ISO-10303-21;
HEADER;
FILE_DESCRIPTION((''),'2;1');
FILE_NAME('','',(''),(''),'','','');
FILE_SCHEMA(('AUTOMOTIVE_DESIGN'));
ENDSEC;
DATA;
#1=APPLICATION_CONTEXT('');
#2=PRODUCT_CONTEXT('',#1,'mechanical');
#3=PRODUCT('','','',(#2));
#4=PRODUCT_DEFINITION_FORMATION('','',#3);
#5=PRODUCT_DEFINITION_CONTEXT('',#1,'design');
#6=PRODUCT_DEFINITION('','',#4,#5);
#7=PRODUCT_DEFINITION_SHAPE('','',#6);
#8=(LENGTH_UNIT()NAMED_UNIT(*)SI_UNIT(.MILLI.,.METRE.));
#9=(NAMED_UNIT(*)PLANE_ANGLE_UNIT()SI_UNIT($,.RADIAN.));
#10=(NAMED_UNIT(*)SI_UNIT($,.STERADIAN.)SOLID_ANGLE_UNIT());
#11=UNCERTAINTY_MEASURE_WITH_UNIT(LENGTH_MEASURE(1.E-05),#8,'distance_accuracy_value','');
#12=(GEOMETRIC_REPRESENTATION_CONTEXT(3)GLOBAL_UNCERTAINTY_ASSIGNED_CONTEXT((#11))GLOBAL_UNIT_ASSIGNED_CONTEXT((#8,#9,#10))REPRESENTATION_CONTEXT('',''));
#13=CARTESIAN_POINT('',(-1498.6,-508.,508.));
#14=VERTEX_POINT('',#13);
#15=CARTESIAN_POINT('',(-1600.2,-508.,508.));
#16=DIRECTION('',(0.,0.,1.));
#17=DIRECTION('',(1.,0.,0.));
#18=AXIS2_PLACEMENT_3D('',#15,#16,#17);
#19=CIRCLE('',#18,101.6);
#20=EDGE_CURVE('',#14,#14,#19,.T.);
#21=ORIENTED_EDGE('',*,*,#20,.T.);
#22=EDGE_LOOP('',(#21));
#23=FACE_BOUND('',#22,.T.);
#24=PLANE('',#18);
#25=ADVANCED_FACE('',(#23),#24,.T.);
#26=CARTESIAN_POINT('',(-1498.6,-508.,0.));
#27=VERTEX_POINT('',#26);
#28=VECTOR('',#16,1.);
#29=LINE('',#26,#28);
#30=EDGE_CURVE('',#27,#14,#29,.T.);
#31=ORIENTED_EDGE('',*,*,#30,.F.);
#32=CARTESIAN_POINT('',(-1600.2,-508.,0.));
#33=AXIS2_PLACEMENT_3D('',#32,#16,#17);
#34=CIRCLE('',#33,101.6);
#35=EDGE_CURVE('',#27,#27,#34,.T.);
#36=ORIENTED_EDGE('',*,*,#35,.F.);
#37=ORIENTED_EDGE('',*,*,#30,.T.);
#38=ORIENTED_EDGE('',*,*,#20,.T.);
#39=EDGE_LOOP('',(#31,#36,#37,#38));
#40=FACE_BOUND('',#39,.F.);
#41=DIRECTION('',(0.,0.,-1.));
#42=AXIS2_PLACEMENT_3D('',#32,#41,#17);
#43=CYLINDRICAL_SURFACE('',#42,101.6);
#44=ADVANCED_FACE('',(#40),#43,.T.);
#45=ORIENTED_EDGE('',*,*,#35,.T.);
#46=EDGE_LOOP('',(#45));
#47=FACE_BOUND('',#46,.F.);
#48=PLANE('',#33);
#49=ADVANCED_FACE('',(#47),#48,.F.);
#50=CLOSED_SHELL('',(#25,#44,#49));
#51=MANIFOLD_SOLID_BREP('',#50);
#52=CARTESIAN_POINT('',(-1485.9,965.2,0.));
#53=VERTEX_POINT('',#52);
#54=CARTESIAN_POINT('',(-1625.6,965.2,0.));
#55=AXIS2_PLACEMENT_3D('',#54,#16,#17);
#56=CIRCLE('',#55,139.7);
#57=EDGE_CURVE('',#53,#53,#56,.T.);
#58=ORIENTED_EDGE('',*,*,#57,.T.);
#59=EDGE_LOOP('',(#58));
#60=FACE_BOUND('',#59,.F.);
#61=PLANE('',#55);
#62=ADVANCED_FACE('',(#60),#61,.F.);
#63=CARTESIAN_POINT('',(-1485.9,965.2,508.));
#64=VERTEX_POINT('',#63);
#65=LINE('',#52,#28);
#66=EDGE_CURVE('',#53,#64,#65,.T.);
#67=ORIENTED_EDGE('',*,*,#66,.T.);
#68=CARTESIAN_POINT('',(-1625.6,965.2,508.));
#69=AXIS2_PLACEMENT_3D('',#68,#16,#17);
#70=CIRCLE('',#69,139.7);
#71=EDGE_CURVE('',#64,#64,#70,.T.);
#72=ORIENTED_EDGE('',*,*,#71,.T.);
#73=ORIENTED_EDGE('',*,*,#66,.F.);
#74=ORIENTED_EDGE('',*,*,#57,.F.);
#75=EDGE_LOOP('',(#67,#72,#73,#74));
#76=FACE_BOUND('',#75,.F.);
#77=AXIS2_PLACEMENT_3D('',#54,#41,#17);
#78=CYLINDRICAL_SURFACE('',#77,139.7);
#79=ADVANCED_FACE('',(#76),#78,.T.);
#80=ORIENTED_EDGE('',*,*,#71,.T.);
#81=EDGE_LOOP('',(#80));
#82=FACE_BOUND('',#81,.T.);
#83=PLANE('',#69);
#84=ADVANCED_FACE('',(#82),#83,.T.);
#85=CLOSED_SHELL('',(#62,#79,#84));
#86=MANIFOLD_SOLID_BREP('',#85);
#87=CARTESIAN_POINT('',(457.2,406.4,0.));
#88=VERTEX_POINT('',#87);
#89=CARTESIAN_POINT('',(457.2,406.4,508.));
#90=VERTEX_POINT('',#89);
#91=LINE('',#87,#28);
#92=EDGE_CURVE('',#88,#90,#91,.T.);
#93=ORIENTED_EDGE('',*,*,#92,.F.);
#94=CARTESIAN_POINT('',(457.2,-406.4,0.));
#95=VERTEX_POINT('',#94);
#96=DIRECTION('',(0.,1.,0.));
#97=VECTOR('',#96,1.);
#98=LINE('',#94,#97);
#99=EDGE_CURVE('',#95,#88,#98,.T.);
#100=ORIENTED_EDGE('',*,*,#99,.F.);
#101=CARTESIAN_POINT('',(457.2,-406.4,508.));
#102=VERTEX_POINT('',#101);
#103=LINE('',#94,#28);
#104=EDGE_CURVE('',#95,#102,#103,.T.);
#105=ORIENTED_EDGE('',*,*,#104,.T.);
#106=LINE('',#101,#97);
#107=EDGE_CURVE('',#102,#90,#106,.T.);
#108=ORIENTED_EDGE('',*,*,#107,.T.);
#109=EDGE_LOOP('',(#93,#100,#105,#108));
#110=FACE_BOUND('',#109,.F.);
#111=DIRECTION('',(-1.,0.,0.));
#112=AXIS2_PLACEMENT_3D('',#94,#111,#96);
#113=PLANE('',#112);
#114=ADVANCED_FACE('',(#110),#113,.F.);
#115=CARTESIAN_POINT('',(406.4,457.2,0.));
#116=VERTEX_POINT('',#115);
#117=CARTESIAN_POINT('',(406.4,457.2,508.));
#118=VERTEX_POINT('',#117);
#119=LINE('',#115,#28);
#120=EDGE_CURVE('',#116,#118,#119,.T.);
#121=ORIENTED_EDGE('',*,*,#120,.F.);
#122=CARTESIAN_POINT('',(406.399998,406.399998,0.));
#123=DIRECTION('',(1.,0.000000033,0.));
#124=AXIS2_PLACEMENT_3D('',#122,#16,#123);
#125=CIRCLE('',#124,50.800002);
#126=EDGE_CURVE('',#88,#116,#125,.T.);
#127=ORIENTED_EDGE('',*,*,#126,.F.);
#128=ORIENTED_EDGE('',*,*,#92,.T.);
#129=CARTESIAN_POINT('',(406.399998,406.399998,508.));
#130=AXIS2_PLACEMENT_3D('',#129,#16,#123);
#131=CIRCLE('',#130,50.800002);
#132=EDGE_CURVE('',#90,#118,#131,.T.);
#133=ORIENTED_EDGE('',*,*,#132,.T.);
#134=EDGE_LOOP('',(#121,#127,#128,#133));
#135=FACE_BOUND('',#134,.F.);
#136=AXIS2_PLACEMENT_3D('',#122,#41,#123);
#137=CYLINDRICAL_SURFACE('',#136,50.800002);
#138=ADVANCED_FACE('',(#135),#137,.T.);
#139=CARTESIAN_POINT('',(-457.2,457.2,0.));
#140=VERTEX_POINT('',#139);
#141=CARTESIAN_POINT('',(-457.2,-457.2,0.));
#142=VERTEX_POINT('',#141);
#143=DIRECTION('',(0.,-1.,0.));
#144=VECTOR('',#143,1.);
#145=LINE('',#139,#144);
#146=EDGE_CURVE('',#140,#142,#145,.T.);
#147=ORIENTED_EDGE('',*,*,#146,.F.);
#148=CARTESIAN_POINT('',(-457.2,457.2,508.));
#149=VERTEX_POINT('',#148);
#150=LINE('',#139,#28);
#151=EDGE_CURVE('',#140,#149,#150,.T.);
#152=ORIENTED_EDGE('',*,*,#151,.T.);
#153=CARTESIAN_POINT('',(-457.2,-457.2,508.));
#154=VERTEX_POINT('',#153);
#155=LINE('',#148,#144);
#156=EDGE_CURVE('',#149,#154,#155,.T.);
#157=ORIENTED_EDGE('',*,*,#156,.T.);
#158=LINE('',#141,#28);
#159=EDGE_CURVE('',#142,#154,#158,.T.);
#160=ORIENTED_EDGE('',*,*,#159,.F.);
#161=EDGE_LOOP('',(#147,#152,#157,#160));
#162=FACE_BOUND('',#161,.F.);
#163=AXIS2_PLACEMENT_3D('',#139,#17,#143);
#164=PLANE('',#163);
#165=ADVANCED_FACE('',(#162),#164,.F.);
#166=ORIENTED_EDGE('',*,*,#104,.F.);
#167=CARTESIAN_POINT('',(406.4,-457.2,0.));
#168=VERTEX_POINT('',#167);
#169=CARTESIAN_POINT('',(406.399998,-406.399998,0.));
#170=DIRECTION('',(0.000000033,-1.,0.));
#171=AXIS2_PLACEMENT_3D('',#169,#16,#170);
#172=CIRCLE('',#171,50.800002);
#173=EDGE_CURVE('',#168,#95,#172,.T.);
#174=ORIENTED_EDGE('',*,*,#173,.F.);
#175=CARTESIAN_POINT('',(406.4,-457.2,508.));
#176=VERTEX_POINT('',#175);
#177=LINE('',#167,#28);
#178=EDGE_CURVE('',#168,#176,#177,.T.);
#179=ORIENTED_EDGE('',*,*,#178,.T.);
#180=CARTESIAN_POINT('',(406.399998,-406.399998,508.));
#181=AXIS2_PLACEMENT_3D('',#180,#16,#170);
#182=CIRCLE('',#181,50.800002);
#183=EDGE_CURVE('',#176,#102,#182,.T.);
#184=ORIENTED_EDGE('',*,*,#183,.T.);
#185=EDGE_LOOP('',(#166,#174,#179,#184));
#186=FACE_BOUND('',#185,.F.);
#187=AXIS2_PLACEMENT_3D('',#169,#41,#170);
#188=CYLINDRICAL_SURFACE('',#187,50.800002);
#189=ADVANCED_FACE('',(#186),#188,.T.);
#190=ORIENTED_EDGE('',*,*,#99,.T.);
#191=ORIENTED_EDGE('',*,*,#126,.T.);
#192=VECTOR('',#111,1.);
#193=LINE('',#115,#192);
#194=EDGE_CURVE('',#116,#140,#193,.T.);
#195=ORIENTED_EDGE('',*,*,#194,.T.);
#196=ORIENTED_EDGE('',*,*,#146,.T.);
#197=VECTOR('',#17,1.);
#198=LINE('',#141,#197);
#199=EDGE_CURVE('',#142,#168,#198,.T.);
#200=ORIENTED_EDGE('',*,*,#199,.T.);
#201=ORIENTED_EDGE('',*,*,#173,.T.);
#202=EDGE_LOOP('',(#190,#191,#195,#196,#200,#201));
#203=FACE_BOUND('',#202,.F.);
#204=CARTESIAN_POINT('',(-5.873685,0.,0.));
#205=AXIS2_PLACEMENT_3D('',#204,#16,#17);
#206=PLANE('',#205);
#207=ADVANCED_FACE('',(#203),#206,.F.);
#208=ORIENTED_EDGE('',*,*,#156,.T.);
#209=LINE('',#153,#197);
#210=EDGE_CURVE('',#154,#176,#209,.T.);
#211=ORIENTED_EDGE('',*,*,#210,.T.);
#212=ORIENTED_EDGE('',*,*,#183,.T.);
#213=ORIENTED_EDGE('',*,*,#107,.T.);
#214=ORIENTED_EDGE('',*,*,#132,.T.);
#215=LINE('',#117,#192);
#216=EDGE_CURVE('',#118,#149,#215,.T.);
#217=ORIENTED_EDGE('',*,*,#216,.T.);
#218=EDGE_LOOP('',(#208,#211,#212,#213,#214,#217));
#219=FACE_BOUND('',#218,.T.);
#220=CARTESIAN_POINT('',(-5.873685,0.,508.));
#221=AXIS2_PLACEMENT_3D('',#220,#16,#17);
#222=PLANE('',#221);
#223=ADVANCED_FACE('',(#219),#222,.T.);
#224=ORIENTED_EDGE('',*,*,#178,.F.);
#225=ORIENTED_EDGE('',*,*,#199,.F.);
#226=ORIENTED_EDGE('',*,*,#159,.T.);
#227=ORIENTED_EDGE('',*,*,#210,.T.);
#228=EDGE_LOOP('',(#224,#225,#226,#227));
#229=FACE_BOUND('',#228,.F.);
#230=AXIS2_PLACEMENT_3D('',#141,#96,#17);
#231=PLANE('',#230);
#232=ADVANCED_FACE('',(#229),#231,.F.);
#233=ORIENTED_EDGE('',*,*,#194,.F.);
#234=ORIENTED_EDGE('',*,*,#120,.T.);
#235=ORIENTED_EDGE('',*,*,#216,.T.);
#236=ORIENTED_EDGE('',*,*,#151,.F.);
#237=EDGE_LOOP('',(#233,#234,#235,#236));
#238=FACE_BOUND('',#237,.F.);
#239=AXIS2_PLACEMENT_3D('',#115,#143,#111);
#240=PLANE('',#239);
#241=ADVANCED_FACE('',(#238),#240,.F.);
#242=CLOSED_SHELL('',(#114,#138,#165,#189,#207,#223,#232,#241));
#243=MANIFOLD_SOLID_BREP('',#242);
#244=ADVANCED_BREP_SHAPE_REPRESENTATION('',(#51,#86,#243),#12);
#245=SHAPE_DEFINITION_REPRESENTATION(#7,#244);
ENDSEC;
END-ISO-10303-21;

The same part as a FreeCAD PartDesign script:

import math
import FreeCAD as App
import Part
import Sketcher
from FreeCAD import Vector
Q = App.Units.Quantity

doc = App.newDocument("Part")
body = doc.addObject("PartDesign::Body", "Body")

# Sketch on XY plane
sketch1 = body.newObject("Sketcher::SketchObject", "Sketch")
sketch1.AttachmentSupport = (doc.getObject("XY_Plane"), [""])
sketch1.MapMode = "FlatFace"
sketch1.addGeometry([
    Part.ArcOfCircle(Part.Circle(Vector(406, 406, 0), Vector(0, 0, 1), 51), math.radians(0), math.radians(90)),  # 0
    Part.LineSegment(Vector(406, 457, 0), Vector(-457, 457, 0)),  # 1
    Part.LineSegment(Vector(-457, 457, 0), Vector(-457, -457, 0)),  # 2
    Part.LineSegment(Vector(-457, -457, 0), Vector(406, -457, 0)),  # 3
    Part.ArcOfCircle(Part.Circle(Vector(406, -406, 0), Vector(0, 0, 1), 51), math.radians(-90), math.radians(0)),  # 4
    Part.LineSegment(Vector(457, -406, 0), Vector(457, 406, 0)),  # 5
], False)
sketch1.addConstraint([
    Sketcher.Constraint("Tangent", 0, 2, 1, 1),
    Sketcher.Constraint("Coincident", 1, 2, 2, 1),
    Sketcher.Constraint("Coincident", 2, 2, 3, 1),
    Sketcher.Constraint("Tangent", 3, 2, 4, 1),
    Sketcher.Constraint("Tangent", 4, 2, 5, 1),
    Sketcher.Constraint("Tangent", 5, 2, 0, 1),
    Sketcher.Constraint("Horizontal", 1),
    Sketcher.Constraint("Vertical", 2),
    Sketcher.Constraint("Horizontal", 3),
    Sketcher.Constraint("Vertical", 5),
    Sketcher.Constraint("Equal", 0, 4),
    Sketcher.Constraint("Radius", 0, Q("2.0000001 in")),
    Sketcher.Constraint("DistanceX", 1, 2, 1, 1, Q("34 in")),
    Sketcher.Constraint("DistanceY", 2, 2, 2, 1, Q("36 in")),
    Sketcher.Constraint("DistanceX", -1, 1, 0, 3, Q("15.9999999 in")),
    Sketcher.Constraint("DistanceY", -1, 1, 0, 3, Q("15.9999999 in")),
])
pad1 = body.newObject("PartDesign::Pad", "Pad")
pad1.Profile = sketch1
pad1.Length = Q("20 in")
body2 = doc.addObject("PartDesign::Body", "Body001")

# Sketch on XY plane
sketch2 = body2.newObject("Sketcher::SketchObject", "Sketch001")
sketch2.AttachmentSupport = (doc.getObject("XY_Plane001"), [""])
sketch2.MapMode = "FlatFace"
sketch2.addGeometry(Part.Circle(Vector(-1600, -508, 0), Vector(0, 0, 1), 102), False)
sketch2.addConstraint([
    Sketcher.Constraint("Diameter", 0, Q("8 in")),
    Sketcher.Constraint("DistanceX", 0, 3, -1, 1, Q("63 in")),
    Sketcher.Constraint("DistanceY", 0, 3, -1, 1, Q("20 in")),
])
pad2 = body2.newObject("PartDesign::Pad", "Pad001")
pad2.Profile = sketch2
pad2.Length = Q("20 in")
body3 = doc.addObject("PartDesign::Body", "Body002")

# Sketch on XY plane
sketch3 = body3.newObject("Sketcher::SketchObject", "Sketch002")
sketch3.AttachmentSupport = (doc.getObject("XY_Plane002"), [""])
sketch3.MapMode = "FlatFace"
sketch3.addGeometry(Part.Circle(Vector(-1626, 965, 0), Vector(0, 0, 1), 140), False)
sketch3.addConstraint([
    Sketcher.Constraint("Diameter", 0, Q("11 in")),
    Sketcher.Constraint("DistanceX", 0, 3, -1, 1, Q("64 in")),
    Sketcher.Constraint("DistanceY", -1, 1, 0, 3, Q("38 in")),
])
pad3 = body3.newObject("PartDesign::Pad", "Pad002")
pad3.Profile = sketch3
pad3.Length = Q("20 in")

doc.recompute()
